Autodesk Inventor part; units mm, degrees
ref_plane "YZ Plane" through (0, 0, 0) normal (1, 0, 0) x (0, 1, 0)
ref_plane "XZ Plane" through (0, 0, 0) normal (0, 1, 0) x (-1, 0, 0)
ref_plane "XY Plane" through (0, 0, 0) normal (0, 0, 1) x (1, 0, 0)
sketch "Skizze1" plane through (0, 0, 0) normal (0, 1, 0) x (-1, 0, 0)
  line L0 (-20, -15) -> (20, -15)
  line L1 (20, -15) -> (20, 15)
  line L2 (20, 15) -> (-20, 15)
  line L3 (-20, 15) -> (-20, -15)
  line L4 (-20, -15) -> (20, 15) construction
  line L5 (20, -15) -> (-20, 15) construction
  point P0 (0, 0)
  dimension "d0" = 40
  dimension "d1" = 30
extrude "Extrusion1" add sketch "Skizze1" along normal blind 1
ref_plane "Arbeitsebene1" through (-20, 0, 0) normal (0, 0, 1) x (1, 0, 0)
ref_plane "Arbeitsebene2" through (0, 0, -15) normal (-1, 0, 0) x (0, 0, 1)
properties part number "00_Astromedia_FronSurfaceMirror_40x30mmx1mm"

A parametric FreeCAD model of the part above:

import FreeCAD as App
import Part
import Sketcher

doc = App.newDocument("Part")
params = doc.addObject("Spreadsheet::Sheet", "Params")
for row, (alias, value) in enumerate([
    ("sketch1_width", "40 mm"),
    ("sketch1_height", "30 mm"),
    ("pad1_length", "1 mm"),
], start=1):
    params.set(f"A{row}", alias)
    params.set(f"B{row}", "=" + value)
    params.setAlias(f"B{row}", alias)

body = doc.addObject("PartDesign::Body", "Body")

# Sketch on XZ plane
sketch1 = doc.addObject("Sketcher::SketchObject", "Sketch")
body.addObject(sketch1)
sketch1.AttachmentSupport = (doc.XZ_Plane, [""])
sketch1.MapMode = "FlatFace"
sketch1.addGeometry([
    Part.LineSegment(App.Vector(20, 15, 0), App.Vector(20, -15, 0)),
    Part.LineSegment(App.Vector(20, -15, 0), App.Vector(-20, -15, 0)),
    Part.LineSegment(App.Vector(-20, -15, 0), App.Vector(-20, 15, 0)),
    Part.LineSegment(App.Vector(-20, 15, 0), App.Vector(20, 15, 0)),
], False)
sketch1.addConstraint([
    Sketcher.Constraint("Coincident", 0, 2, 1, 1),
    Sketcher.Constraint("Coincident", 1, 2, 2, 1),
    Sketcher.Constraint("Coincident", 2, 2, 3, 1),
    Sketcher.Constraint("Coincident", 3, 2, 0, 1),
    Sketcher.Constraint("Vertical", 0),
    Sketcher.Constraint("Horizontal", 1),
    Sketcher.Constraint("Vertical", 2),
    Sketcher.Constraint("Horizontal", 3),
    Sketcher.Constraint("Symmetric", 0, 2, 2, 2, -1, 1),
    Sketcher.Constraint("DistanceX", 1, 2, 1, 1, 40.0),
    Sketcher.Constraint("DistanceY", 0, 2, 0, 1, 30.0),
])
sketch1.setExpression("Constraints[9]", "Params.sketch1_width")
sketch1.setExpression("Constraints[10]", "Params.sketch1_height")
pad1 = doc.addObject("PartDesign::Pad", "Pad")
body.addObject(pad1)
pad1.Profile = sketch1
pad1.setExpression("Length", "Params.pad1_length")
pad1.Reversed = True

doc.recompute()
